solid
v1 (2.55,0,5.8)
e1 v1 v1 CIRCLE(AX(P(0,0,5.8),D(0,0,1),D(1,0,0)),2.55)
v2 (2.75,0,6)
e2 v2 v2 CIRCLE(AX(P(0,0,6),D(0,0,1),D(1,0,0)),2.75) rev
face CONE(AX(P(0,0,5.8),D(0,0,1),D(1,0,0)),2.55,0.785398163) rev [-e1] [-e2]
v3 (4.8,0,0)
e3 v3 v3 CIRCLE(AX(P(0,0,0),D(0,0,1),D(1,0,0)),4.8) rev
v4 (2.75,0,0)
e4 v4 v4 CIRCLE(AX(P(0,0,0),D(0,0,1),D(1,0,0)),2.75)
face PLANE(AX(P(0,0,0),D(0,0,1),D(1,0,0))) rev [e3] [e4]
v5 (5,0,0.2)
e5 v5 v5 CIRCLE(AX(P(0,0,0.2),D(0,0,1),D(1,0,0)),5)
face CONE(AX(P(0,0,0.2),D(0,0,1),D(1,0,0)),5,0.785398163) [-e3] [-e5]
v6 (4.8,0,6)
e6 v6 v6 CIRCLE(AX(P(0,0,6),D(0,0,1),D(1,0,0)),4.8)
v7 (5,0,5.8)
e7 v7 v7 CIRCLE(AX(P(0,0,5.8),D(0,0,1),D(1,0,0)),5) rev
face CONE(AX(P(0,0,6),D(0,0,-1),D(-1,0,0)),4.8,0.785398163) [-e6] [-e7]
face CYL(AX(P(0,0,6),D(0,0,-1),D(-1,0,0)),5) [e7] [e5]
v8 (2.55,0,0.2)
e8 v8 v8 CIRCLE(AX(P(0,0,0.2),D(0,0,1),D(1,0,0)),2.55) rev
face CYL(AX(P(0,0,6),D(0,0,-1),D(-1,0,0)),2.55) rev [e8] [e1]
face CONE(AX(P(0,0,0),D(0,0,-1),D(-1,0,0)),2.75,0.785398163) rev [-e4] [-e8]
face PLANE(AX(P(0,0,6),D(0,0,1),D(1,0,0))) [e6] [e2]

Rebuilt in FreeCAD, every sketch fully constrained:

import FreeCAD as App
import Part
import Sketcher
Q = App.Units.Quantity


def edges_at(feature, points):
    """Names of the edges that pass closest to the given points."""
    edges = feature.Shape.Edges
    near = lambda p: min(range(len(edges)), key=lambda i: edges[i].distToShape(Part.Vertex(*p))[0])
    return sorted({f"Edge{near(p) + 1}" for p in points})

doc = App.newDocument("Part")
body = doc.addObject("PartDesign::Body", "Body")

# Sketch on XY plane
sketch1 = doc.addObject("Sketcher::SketchObject", "Sketch")
body.addObject(sketch1)
sketch1.AttachmentSupport = (doc.XY_Plane, [""])
sketch1.MapMode = "FlatFace"
sketch1.addGeometry([
    Part.Circle(App.Vector(0, 0, 0), App.Vector(0, 0, 1), 5),
    Part.Circle(App.Vector(0, 0, 0), App.Vector(0, 0, 1), 2.5),
], False)
sketch1.addConstraint([
    Sketcher.Constraint("Coincident", 0, 3, -1, 1),
    Sketcher.Constraint("Coincident", 1, 3, -1, 1),
    Sketcher.Constraint("Diameter", 0, Q("10 mm")),
    Sketcher.Constraint("Diameter", 1, Q("5.1 mm")),
])
pad1 = doc.addObject("PartDesign::Pad", "Pad")
body.addObject(pad1)
pad1.Profile = sketch1
pad1.Length = 6
doc.recompute()

chamfer = doc.addObject("PartDesign::Chamfer", "Chamfer")
body.addObject(chamfer)
chamfer.Base = (pad1, edges_at(pad1, [
    (-5, 0, 0),
    (-5, 0, 6),
    (-2.55, 0, 0),
    (-2.55, 0, 6),
]))
chamfer.Size = 0.2

doc.recompute()
